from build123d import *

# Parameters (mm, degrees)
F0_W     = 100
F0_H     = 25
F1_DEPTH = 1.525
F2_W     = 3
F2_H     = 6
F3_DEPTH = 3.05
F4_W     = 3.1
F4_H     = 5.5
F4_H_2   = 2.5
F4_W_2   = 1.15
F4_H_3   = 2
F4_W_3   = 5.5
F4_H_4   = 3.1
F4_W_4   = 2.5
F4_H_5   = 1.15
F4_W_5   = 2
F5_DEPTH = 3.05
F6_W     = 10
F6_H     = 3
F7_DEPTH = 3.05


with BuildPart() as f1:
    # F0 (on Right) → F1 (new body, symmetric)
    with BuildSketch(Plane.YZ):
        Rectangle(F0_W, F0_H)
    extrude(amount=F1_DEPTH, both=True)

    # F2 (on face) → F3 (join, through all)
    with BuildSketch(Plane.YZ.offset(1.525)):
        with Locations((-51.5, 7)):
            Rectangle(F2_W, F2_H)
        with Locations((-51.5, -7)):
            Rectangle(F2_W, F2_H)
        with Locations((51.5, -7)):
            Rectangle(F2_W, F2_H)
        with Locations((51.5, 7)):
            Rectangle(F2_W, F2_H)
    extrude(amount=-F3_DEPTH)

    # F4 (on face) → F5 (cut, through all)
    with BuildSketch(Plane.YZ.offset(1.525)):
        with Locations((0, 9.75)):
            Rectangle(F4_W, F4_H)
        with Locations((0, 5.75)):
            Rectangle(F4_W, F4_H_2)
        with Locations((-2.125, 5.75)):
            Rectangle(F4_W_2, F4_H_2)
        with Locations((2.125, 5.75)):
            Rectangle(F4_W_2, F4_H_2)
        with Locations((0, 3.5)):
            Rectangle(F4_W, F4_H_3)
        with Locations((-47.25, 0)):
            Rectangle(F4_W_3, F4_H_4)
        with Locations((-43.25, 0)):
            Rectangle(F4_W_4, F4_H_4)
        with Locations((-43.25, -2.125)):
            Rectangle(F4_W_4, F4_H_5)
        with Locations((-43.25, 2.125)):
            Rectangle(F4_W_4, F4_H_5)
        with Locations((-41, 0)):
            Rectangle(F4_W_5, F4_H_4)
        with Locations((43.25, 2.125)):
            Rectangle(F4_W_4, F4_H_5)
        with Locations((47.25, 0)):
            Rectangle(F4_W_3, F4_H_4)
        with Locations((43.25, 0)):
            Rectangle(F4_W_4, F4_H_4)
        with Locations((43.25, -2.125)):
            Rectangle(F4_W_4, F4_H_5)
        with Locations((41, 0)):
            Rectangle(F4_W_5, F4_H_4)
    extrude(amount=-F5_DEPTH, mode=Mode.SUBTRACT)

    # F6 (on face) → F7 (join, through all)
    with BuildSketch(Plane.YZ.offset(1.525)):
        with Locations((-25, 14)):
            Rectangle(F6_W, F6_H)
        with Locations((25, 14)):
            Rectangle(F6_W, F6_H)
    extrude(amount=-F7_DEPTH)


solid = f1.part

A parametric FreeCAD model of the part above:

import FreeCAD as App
import Part
import Sketcher

V = App.Vector

doc = App.newDocument("Part")
params = doc.addObject("Spreadsheet::Sheet", "Params")
for row, (alias, value) in enumerate([
    ("sketch1_width", "100 mm"),
    ("sketch1_height", "25 mm"),
    ("pad1_length", "3.05 mm"),
    ("sketch2_width", "3 mm"),
    ("sketch2_height", "6 mm"),
    ("sketch3_width", "2 mm"),
    ("sketch3_width2", "3.1 mm"),
    ("sketch3_width3", "5.5 mm"),
    ("sketch3_width4", "2.5 mm"),
    ("sketch3_width5", "1.15 mm"),
    ("sketch4_width", "10 mm"),
    ("sketch4_height", "3 mm"),
    ("pad3_length", "3.05 mm"),
], start=1):
    params.set(f"A{row}", alias)
    params.set(f"B{row}", "=" + value)
    params.setAlias(f"B{row}", alias)

body = doc.addObject("PartDesign::Body", "Body")

# Sketch on YZ plane
sketch1 = body.newObject("Sketcher::SketchObject", "Sketch")
sketch1.AttachmentSupport = (doc.getObject("YZ_Plane"), [""])
sketch1.MapMode = "FlatFace"
sketch1.addGeometry(Part.LineSegment(V(-50, 12, 0), V(-50, -12, 0)), False)
sketch1.addGeometry(Part.LineSegment(V(-50, -12, 0), V(50, -12, 0)), False)
sketch1.addGeometry(Part.LineSegment(V(50, -12, 0), V(50, 12, 0)), False)
sketch1.addGeometry(Part.LineSegment(V(50, 12, 0), V(-50, 12, 0)), False)
sketch1.addConstraint(Sketcher.Constraint("Coincident", 0, 2, 1, 1))
sketch1.addConstraint(Sketcher.Constraint("Coincident", 1, 2, 2, 1))
sketch1.addConstraint(Sketcher.Constraint("Coincident", 2, 2, 3, 1))
sketch1.addConstraint(Sketcher.Constraint("Coincident", 3, 2, 0, 1))
sketch1.addConstraint(Sketcher.Constraint("Vertical", 0))
sketch1.addConstraint(Sketcher.Constraint("Horizontal", 1))
sketch1.addConstraint(Sketcher.Constraint("Vertical", 2))
sketch1.addConstraint(Sketcher.Constraint("Horizontal", 3))
sketch1.addConstraint(Sketcher.Constraint("Symmetric", 0, 2, 2, 2, -1, 1))
sketch1.addConstraint(Sketcher.Constraint("DistanceX", 1, 1, 1, 2, 100.0))
sketch1.addConstraint(Sketcher.Constraint("DistanceY", 0, 2, 0, 1, 25.0))
sketch1.setExpression("Constraints[9]", "Params.sketch1_width")
sketch1.setExpression("Constraints[10]", "Params.sketch1_height")
pad1 = body.newObject("PartDesign::Pad", "Pad")
pad1.Profile = sketch1
pad1.setExpression("Length", "Params.pad1_length")
pad1.Midplane = True

# Sketch on YZ plane
sketch2 = body.newObject("Sketcher::SketchObject", "Sketch001")
sketch2.AttachmentSupport = (doc.getObject("YZ_Plane"), [""])
sketch2.MapMode = "FlatFace"
sketch2.AttachmentOffset = App.Placement(V(0, 0, 1.525), App.Rotation())
sketch2.addGeometry(Part.LineSegment(V(-53, 10, 0), V(-53, 4, 0)), False)
sketch2.addGeometry(Part.LineSegment(V(-53, 4, 0), V(-50, 4, 0)), False)
sketch2.addGeometry(Part.LineSegment(V(-50, 4, 0), V(-50, 10, 0)), False)
sketch2.addGeometry(Part.LineSegment(V(-50, 10, 0), V(-53, 10, 0)), False)
sketch2.addGeometry(Part.LineSegment(V(-53, -4, 0), V(-53, -10, 0)), False)
sketch2.addGeometry(Part.LineSegment(V(-53, -10, 0), V(-50, -10, 0)), False)
sketch2.addGeometry(Part.LineSegment(V(-50, -10, 0), V(-50, -4, 0)), False)
sketch2.addGeometry(Part.LineSegment(V(-50, -4, 0), V(-53, -4, 0)), False)
sketch2.addGeometry(Part.LineSegment(V(50, -4, 0), V(50, -10, 0)), False)
sketch2.addGeometry(Part.LineSegment(V(50, -10, 0), V(53, -10, 0)), False)
sketch2.addGeometry(Part.LineSegment(V(53, -10, 0), V(53, -4, 0)), False)
sketch2.addGeometry(Part.LineSegment(V(53, -4, 0), V(50, -4, 0)), False)
sketch2.addGeometry(Part.LineSegment(V(50, 10, 0), V(50, 4, 0)), False)
sketch2.addGeometry(Part.LineSegment(V(50, 4, 0), V(53, 4, 0)), False)
sketch2.addGeometry(Part.LineSegment(V(53, 4, 0), V(53, 10, 0)), False)
sketch2.addGeometry(Part.LineSegment(V(53, 10, 0), V(50, 10, 0)), False)
sketch2.addConstraint(Sketcher.Constraint("Coincident", 0, 2, 1, 1))
sketch2.addConstraint(Sketcher.Constraint("Coincident", 1, 2, 2, 1))
sketch2.addConstraint(Sketcher.Constraint("Coincident", 2, 2, 3, 1))
sketch2.addConstraint(Sketcher.Constraint("Coincident", 3, 2, 0, 1))
sketch2.addConstraint(Sketcher.Constraint("Coincident", 4, 2, 5, 1))
sketch2.addConstraint(Sketcher.Constraint("Coincident", 5, 2, 6, 1))
sketch2.addConstraint(Sketcher.Constraint("Coincident", 6, 2, 7, 1))
sketch2.addConstraint(Sketcher.Constraint("Coincident", 7, 2, 4, 1))
sketch2.addConstraint(Sketcher.Constraint("Coincident", 8, 2, 9, 1))
sketch2.addConstraint(Sketcher.Constraint("Coincident", 9, 2, 10, 1))
sketch2.addConstraint(Sketcher.Constraint("Coincident", 10, 2, 11, 1))
sketch2.addConstraint(Sketcher.Constraint("Coincident", 11, 2, 8, 1))
sketch2.addConstraint(Sketcher.Constraint("Coincident", 12, 2, 13, 1))
sketch2.addConstraint(Sketcher.Constraint("Coincident", 13, 2, 14, 1))
sketch2.addConstraint(Sketcher.Constraint("Coincident", 14, 2, 15, 1))
sketch2.addConstraint(Sketcher.Constraint("Coincident", 15, 2, 12, 1))
sketch2.addConstraint(Sketcher.Constraint("Vertical", 0))
sketch2.addConstraint(Sketcher.Constraint("Horizontal", 1))
sketch2.addConstraint(Sketcher.Constraint("Vertical", 2))
sketch2.addConstraint(Sketcher.Constraint("Horizontal", 3))
sketch2.addConstraint(Sketcher.Constraint("Vertical", 4))
sketch2.addConstraint(Sketcher.Constraint("Horizontal", 5))
sketch2.addConstraint(Sketcher.Constraint("Vertical", 6))
sketch2.addConstraint(Sketcher.Constraint("Horizontal", 7))
sketch2.addConstraint(Sketcher.Constraint("Vertical", 8))
sketch2.addConstraint(Sketcher.Constraint("Horizontal", 9))
sketch2.addConstraint(Sketcher.Constraint("Vertical", 10))
sketch2.addConstraint(Sketcher.Constraint("Horizontal", 11))
sketch2.addConstraint(Sketcher.Constraint("Vertical", 12))
sketch2.addConstraint(Sketcher.Constraint("Horizontal", 13))
sketch2.addConstraint(Sketcher.Constraint("Vertical", 14))
sketch2.addConstraint(Sketcher.Constraint("Horizontal", 15))
sketch2.addConstraint(Sketcher.Constraint("Symmetric", 2, 2, 8, 2, -1, 1))
sketch2.addConstraint(Sketcher.Constraint("Symmetric", 0, 2, 10, 2, -1, 1))
sketch2.addConstraint(Sketcher.Constraint("Symmetric", 6, 2, 12, 2, -1, 1))
sketch2.addConstraint(Sketcher.Constraint("Symmetric", 4, 2, 14, 2, -1, 1))
sketch2.addConstraint(Sketcher.Constraint("Symmetric", 5, 2, 8, 2, -2))
sketch2.addConstraint(Sketcher.Constraint("Symmetric", 7, 2, 10, 2, -2))
sketch2.addConstraint(Sketcher.Constraint("DistanceX", 1, 1, 1, 2, 3.0))
sketch2.addConstraint(Sketcher.Constraint("DistanceY", 0, 2, 0, 1, 6.0))
sketch2.addConstraint(Sketcher.Constraint("DistanceX", 0, 2, -1, 1, 53.0))
sketch2.addConstraint(Sketcher.Constraint("DistanceY", -1, 1, 0, 2, 4.0))
sketch2.setExpression("Constraints[38]", "Params.sketch2_width")
sketch2.setExpression("Constraints[39]", "Params.sketch2_height")
pad2 = body.newObject("PartDesign::Pad", "Pad001")
pad2.Profile = sketch2
pad2.Type = "UpToLast"
pad2.Reversed = True

# Sketch on YZ plane
sketch3 = body.newObject("Sketcher::SketchObject", "Sketch002")
sketch3.AttachmentSupport = (doc.getObject("YZ_Plane"), [""])
sketch3.MapMode = "FlatFace"
sketch3.AttachmentOffset = App.Placement(V(0, 0, 1.525), App.Rotation())
sketch3.addGeometry(Part.LineSegment(V(-1.6, 12.5, 0), V(-1.6, 7, 0)), False)
sketch3.addGeometry(Part.LineSegment(V(-1.6, 7, 0), V(-2.7, 7, 0)), False)
sketch3.addGeometry(Part.LineSegment(V(-2.7, 7, 0), V(-2.7, 4.5, 0)), False)
sketch3.addGeometry(Part.LineSegment(V(-2.7, 4.5, 0), V(-1.6, 4.5, 0)), False)
sketch3.addGeometry(Part.LineSegment(V(-1.6, 4.5, 0), V(-1.6, 2.5, 0)), False)
sketch3.addGeometry(Part.LineSegment(V(-1.6, 2.5, 0), V(1.6, 2.5, 0)), False)
sketch3.addGeometry(Part.LineSegment(V(1.6, 2.5, 0), V(1.6, 4.5, 0)), False)
sketch3.addGeometry(Part.LineSegment(V(1.6, 4.5, 0), V(2.7, 4.5, 0)), False)
sketch3.addGeometry(Part.LineSegment(V(2.7, 4.5, 0), V(2.7, 7, 0)), False)
sketch3.addGeometry(Part.LineSegment(V(2.7, 7, 0), V(1.6, 7, 0)), False)
sketch3.addGeometry(Part.LineSegment(V(1.6, 7, 0), V(1.6, 12.5, 0)), False)
sketch3.addGeometry(Part.LineSegment(V(1.6, 12.5, 0), V(-1.6, 12.5, 0)), False)
sketch3.addGeometry(Part.LineSegment(V(-50, 1.6, 0), V(-50, -1.6, 0)), False)
sketch3.addGeometry(Part.LineSegment(V(-50, -1.6, 0), V(-44.5, -1.6, 0)), False)
sketch3.addGeometry(Part.LineSegment(V(-44.5, -1.6, 0), V(-44.5, -2.7, 0)), False)
sketch3.addGeometry(Part.LineSegment(V(-44.5, -2.7, 0), V(-42, -2.7, 0)), False)
sketch3.addGeometry(Part.LineSegment(V(-42, -2.7, 0), V(-42, -1.6, 0)), False)
sketch3.addGeometry(Part.LineSegment(V(-42, -1.6, 0), V(-40, -1.6, 0)), False)
sketch3.addGeometry(Part.LineSegment(V(-40, -1.6, 0), V(-40, 1.6, 0)), False)
sketch3.addGeometry(Part.LineSegment(V(-40, 1.6, 0), V(-42, 1.6, 0)), False)
sketch3.addGeometry(Part.LineSegment(V(-42, 1.6, 0), V(-42, 2.7, 0)), False)
sketch3.addGeometry(Part.LineSegment(V(-42, 2.7, 0), V(-44.5, 2.7, 0)), False)
sketch3.addGeometry(Part.LineSegment(V(-44.5, 2.7, 0), V(-44.5, 1.6, 0)), False)
sketch3.addGeometry(Part.LineSegment(V(-44.5, 1.6, 0), V(-50, 1.6, 0)), False)
sketch3.addGeometry(Part.LineSegment(V(42, 2.7, 0), V(42, 1.6, 0)), False)
sketch3.addGeometry(Part.LineSegment(V(42, 1.6, 0), V(40, 1.6, 0)), False)
sketch3.addGeometry(Part.LineSegment(V(40, 1.6, 0), V(40, -1.6, 0)), False)
sketch3.addGeometry(Part.LineSegment(V(40, -1.6, 0), V(42, -1.6, 0)), False)
sketch3.addGeometry(Part.LineSegment(V(42, -1.6, 0), V(42, -2.7, 0)), False)
sketch3.addGeometry(Part.LineSegment(V(42, -2.7, 0), V(44.5, -2.7, 0)), False)
sketch3.addGeometry(Part.LineSegment(V(44.5, -2.7, 0), V(44.5, -1.6, 0)), False)
sketch3.addGeometry(Part.LineSegment(V(44.5, -1.6, 0), V(50, -1.6, 0)), False)
sketch3.addGeometry(Part.LineSegment(V(50, -1.6, 0), V(50, 1.6, 0)), False)
sketch3.addGeometry(Part.LineSegment(V(50, 1.6, 0), V(44.5, 1.6, 0)), False)
sketch3.addGeometry(Part.LineSegment(V(44.5, 1.6, 0), V(44.5, 2.7, 0)), False)
sketch3.addGeometry(Part.LineSegment(V(44.5, 2.7, 0), V(42, 2.7, 0)), False)
sketch3.addConstraint(Sketcher.Constraint("Coincident", 0, 2, 1, 1))
sketch3.addConstraint(Sketcher.Constraint("Coincident", 1, 2, 2, 1))
sketch3.addConstraint(Sketcher.Constraint("Coincident", 2, 2, 3, 1))
sketch3.addConstraint(Sketcher.Constraint("Coincident", 3, 2, 4, 1))
sketch3.addConstraint(Sketcher.Constraint("Coincident", 4, 2, 5, 1))
sketch3.addConstraint(Sketcher.Constraint("Coincident", 5, 2, 6, 1))
sketch3.addConstraint(Sketcher.Constraint("Coincident", 6, 2, 7, 1))
sketch3.addConstraint(Sketcher.Constraint("Coincident", 7, 2, 8, 1))
sketch3.addConstraint(Sketcher.Constraint("Coincident", 8, 2, 9, 1))
sketch3.addConstraint(Sketcher.Constraint("Coincident", 9, 2, 10, 1))
sketch3.addConstraint(Sketcher.Constraint("Coincident", 10, 2, 11, 1))
sketch3.addConstraint(Sketcher.Constraint("Coincident", 11, 2, 0, 1))
sketch3.addConstraint(Sketcher.Constraint("Coincident", 12, 2, 13, 1))
sketch3.addConstraint(Sketcher.Constraint("Coincident", 13, 2, 14, 1))
sketch3.addConstraint(Sketcher.Constraint("Coincident", 14, 2, 15, 1))
sketch3.addConstraint(Sketcher.Constraint("Coincident", 15, 2, 16, 1))
sketch3.addConstraint(Sketcher.Constraint("Coincident", 16, 2, 17, 1))
sketch3.addConstraint(Sketcher.Constraint("Coincident", 17, 2, 18, 1))
sketch3.addConstraint(Sketcher.Constraint("Coincident", 18, 2, 19, 1))
sketch3.addConstraint(Sketcher.Constraint("Coincident", 19, 2, 20, 1))
sketch3.addConstraint(Sketcher.Constraint("Coincident", 20, 2, 21, 1))
sketch3.addConstraint(Sketcher.Constraint("Coincident", 21, 2, 22, 1))
sketch3.addConstraint(Sketcher.Constraint("Coincident", 22, 2, 23, 1))
sketch3.addConstraint(Sketcher.Constraint("Coincident", 23, 2, 12, 1))
sketch3.addConstraint(Sketcher.Constraint("Coincident", 24, 2, 25, 1))
sketch3.addConstraint(Sketcher.Constraint("Coincident", 25, 2, 26, 1))
sketch3.addConstraint(Sketcher.Constraint("Coincident", 26, 2, 27, 1))
sketch3.addConstraint(Sketcher.Constraint("Coincident", 27, 2, 28, 1))
sketch3.addConstraint(Sketcher.Constraint("Coincident", 28, 2, 29, 1))
sketch3.addConstraint(Sketcher.Constraint("Coincident", 29, 2, 30, 1))
sketch3.addConstraint(Sketcher.Constraint("Coincident", 30, 2, 31, 1))
sketch3.addConstraint(Sketcher.Constraint("Coincident", 31, 2, 32, 1))
sketch3.addConstraint(Sketcher.Constraint("Coincident", 32, 2, 33, 1))
sketch3.addConstraint(Sketcher.Constraint("Coincident", 33, 2, 34, 1))
sketch3.addConstraint(Sketcher.Constraint("Coincident", 34, 2, 35, 1))
sketch3.addConstraint(Sketcher.Constraint("Coincident", 35, 2, 24, 1))
sketch3.addConstraint(Sketcher.Constraint("Vertical", 0))
sketch3.addConstraint(Sketcher.Constraint("Horizontal", 1))
sketch3.addConstraint(Sketcher.Constraint("Vertical", 2))
sketch3.addConstraint(Sketcher.Constraint("Horizontal", 3))
sketch3.addConstraint(Sketcher.Constraint("Vertical", 4))
sketch3.addConstraint(Sketcher.Constraint("Horizontal", 5))
sketch3.addConstraint(Sketcher.Constraint("Vertical", 6))
sketch3.addConstraint(Sketcher.Constraint("Horizontal", 7))
sketch3.addConstraint(Sketcher.Constraint("Vertical", 8))
sketch3.addConstraint(Sketcher.Constraint("Horizontal", 9))
sketch3.addConstraint(Sketcher.Constraint("Vertical", 10))
sketch3.addConstraint(Sketcher.Constraint("Horizontal", 11))
sketch3.addConstraint(Sketcher.Constraint("Vertical", 12))
sketch3.addConstraint(Sketcher.Constraint("Horizontal", 13))
sketch3.addConstraint(Sketcher.Constraint("Vertical", 14))
sketch3.addConstraint(Sketcher.Constraint("Horizontal", 15))
sketch3.addConstraint(Sketcher.Constraint("Vertical", 16))
sketch3.addConstraint(Sketcher.Constraint("Horizontal", 17))
sketch3.addConstraint(Sketcher.Constraint("Vertical", 18))
sketch3.addConstraint(Sketcher.Constraint("Horizontal", 19))
sketch3.addConstraint(Sketcher.Constraint("Vertical", 20))
sketch3.addConstraint(Sketcher.Constraint("Horizontal", 21))
sketch3.addConstraint(Sketcher.Constraint("Vertical", 22))
sketch3.addConstraint(Sketcher.Constraint("Horizontal", 23))
sketch3.addConstraint(Sketcher.Constraint("Vertical", 24))
sketch3.addConstraint(Sketcher.Constraint("Horizontal", 25))
sketch3.addConstraint(Sketcher.Constraint("Vertical", 26))
sketch3.addConstraint(Sketcher.Constraint("Horizontal", 27))
sketch3.addConstraint(Sketcher.Constraint("Vertical", 28))
sketch3.addConstraint(Sketcher.Constraint("Horizontal", 29))
sketch3.addConstraint(Sketcher.Constraint("Vertical", 30))
sketch3.addConstraint(Sketcher.Constraint("Horizontal", 31))
sketch3.addConstraint(Sketcher.Constraint("Vertical", 32))
sketch3.addConstraint(Sketcher.Constraint("Horizontal", 33))
sketch3.addConstraint(Sketcher.Constraint("Vertical", 34))
sketch3.addConstraint(Sketcher.Constraint("Horizontal", 35))
sketch3.addConstraint(Sketcher.Constraint("Symmetric", 16, 2, 24, 2, -1, 1))
sketch3.addConstraint(Sketcher.Constraint("Symmetric", 18, 2, 26, 2, -1, 1))
sketch3.addConstraint(Sketcher.Constraint("Symmetric", 20, 2, 28, 2, -1, 1))
sketch3.addConstraint(Sketcher.Constraint("Symmetric", 22, 2, 30, 2, -1, 1))
sketch3.addConstraint(Sketcher.Constraint("Symmetric", 12, 2, 32, 2, -1, 1))
sketch3.addConstraint(Sketcher.Constraint("Symmetric", 14, 2, 34, 2, -1, 1))
sketch3.addConstraint(Sketcher.Constraint("Symmetric", 3, 2, 6, 2, -2))
sketch3.addConstraint(Sketcher.Constraint("Symmetric", 1, 2, 8, 2, -2))
sketch3.addConstraint(Sketcher.Constraint("Symmetric", 19, 2, 24, 2, -2))
sketch3.addConstraint(Sketcher.Constraint("Symmetric", 14, 2, 29, 2, -2))
sketch3.addConstraint(Sketcher.Constraint("Horizontal", 13, 2, 16, 2))
sketch3.addConstraint(Sketcher.Constraint("Horizontal", 19, 2, 22, 2))
sketch3.addConstraint(Sketcher.Constraint("Vertical", 0, 2, 3, 2))
sketch3.addConstraint(Sketcher.Constraint("Vertical", 6, 2, 9, 2))
sketch3.addConstraint(Sketcher.Constraint("Equal", 33, 0))
sketch3.addConstraint(Sketcher.Constraint("Equal", 35, 2))
sketch3.addConstraint(Sketcher.Constraint("Equal", 27, 4))
sketch3.addConstraint(Sketcher.Constraint("Equal", 11, 12))
sketch3.addConstraint(Sketcher.Constraint("Equal", 9, 14))
sketch3.addConstraint(Sketcher.Constraint("DistanceX", 17, 1, 17, 2, 2.0))
sketch3.addConstraint(Sketcher.Constraint("DistanceX", 5, 1, 5, 2, 3.1))
sketch3.addConstraint(Sketcher.Constraint("DistanceX", 13, 1, 13, 2, 5.5))
sketch3.addConstraint(Sketcher.Constraint("DistanceX", 15, 1, 15, 2, 2.5))
sketch3.addConstraint(Sketcher.Constraint("DistanceY", -1, 1, 0, 2, 7.0))
sketch3.addConstraint(Sketcher.Constraint("DistanceX", 12, 2, -1, 1, 50.0))
sketch3.addConstraint(Sketcher.Constraint("DistanceX", 1, 2, 1, 1, 1.15))
sketch3.setExpression("Constraints[91]", "Params.sketch3_width")
sketch3.setExpression("Constraints[92]", "Params.sketch3_width2")
sketch3.setExpression("Constraints[93]", "Params.sketch3_width3")
sketch3.setExpression("Constraints[94]", "Params.sketch3_width4")
sketch3.setExpression("Constraints[97]", "Params.sketch3_width5")
pocket1 = body.newObject("PartDesign::Pocket", "Pocket")
pocket1.Profile = sketch3
pocket1.Type = "ThroughAll"

# Sketch on YZ plane
sketch4 = body.newObject("Sketcher::SketchObject", "Sketch003")
sketch4.AttachmentSupport = (doc.getObject("YZ_Plane"), [""])
sketch4.MapMode = "FlatFace"
sketch4.AttachmentOffset = App.Placement(V(0, 0, 1.525), App.Rotation())
sketch4.addGeometry(Part.LineSegment(V(-30, 15.5, 0), V(-30, 12.5, 0)), False)
sketch4.addGeometry(Part.LineSegment(V(-30, 12.5, 0), V(-20, 12.5, 0)), False)
sketch4.addGeometry(Part.LineSegment(V(-20, 12.5, 0), V(-20, 15.5, 0)), False)
sketch4.addGeometry(Part.LineSegment(V(-20, 15.5, 0), V(-30, 15.5, 0)), False)
sketch4.addGeometry(Part.LineSegment(V(20, 15.5, 0), V(20, 12.5, 0)), False)
sketch4.addGeometry(Part.LineSegment(V(20, 12.5, 0), V(30, 12.5, 0)), False)
sketch4.addGeometry(Part.LineSegment(V(30, 12.5, 0), V(30, 15.5, 0)), False)
sketch4.addGeometry(Part.LineSegment(V(30, 15.5, 0), V(20, 15.5, 0)), False)
sketch4.addConstraint(Sketcher.Constraint("Coincident", 0, 2, 1, 1))
sketch4.addConstraint(Sketcher.Constraint("Coincident", 1, 2, 2, 1))
sketch4.addConstraint(Sketcher.Constraint("Coincident", 2, 2, 3, 1))
sketch4.addConstraint(Sketcher.Constraint("Coincident", 3, 2, 0, 1))
sketch4.addConstraint(Sketcher.Constraint("Coincident", 4, 2, 5, 1))
sketch4.addConstraint(Sketcher.Constraint("Coincident", 5, 2, 6, 1))
sketch4.addConstraint(Sketcher.Constraint("Coincident", 6, 2, 7, 1))
sketch4.addConstraint(Sketcher.Constraint("Coincident", 7, 2, 4, 1))
sketch4.addConstraint(Sketcher.Constraint("Vertical", 0))
sketch4.addConstraint(Sketcher.Constraint("Horizontal", 1))
sketch4.addConstraint(Sketcher.Constraint("Vertical", 2))
sketch4.addConstraint(Sketcher.Constraint("Horizontal", 3))
sketch4.addConstraint(Sketcher.Constraint("Vertical", 4))
sketch4.addConstraint(Sketcher.Constraint("Horizontal", 5))
sketch4.addConstraint(Sketcher.Constraint("Vertical", 6))
sketch4.addConstraint(Sketcher.Constraint("Horizontal", 7))
sketch4.addConstraint(Sketcher.Constraint("Symmetric", 1, 2, 4, 2, -2))
sketch4.addConstraint(Sketcher.Constraint("Symmetric", 3, 2, 6, 2, -2))
sketch4.addConstraint(Sketcher.Constraint("DistanceX", 1, 1, 1, 2, 10.0))
sketch4.addConstraint(Sketcher.Constraint("DistanceY", 0, 2, 0, 1, 3.0))
sketch4.addConstraint(Sketcher.Constraint("DistanceX", 0, 2, -1, 1, 30.0))
sketch4.addConstraint(Sketcher.Constraint("DistanceY", -1, 1, 0, 2, 12.5))
sketch4.setExpression("Constraints[18]", "Params.sketch4_width")
sketch4.setExpression("Constraints[19]", "Params.sketch4_height")
pad3 = body.newObject("PartDesign::Pad", "Pad002")
pad3.Profile = sketch4
pad3.setExpression("Length", "Params.pad3_length")
pad3.Reversed = True

doc.recompute()
